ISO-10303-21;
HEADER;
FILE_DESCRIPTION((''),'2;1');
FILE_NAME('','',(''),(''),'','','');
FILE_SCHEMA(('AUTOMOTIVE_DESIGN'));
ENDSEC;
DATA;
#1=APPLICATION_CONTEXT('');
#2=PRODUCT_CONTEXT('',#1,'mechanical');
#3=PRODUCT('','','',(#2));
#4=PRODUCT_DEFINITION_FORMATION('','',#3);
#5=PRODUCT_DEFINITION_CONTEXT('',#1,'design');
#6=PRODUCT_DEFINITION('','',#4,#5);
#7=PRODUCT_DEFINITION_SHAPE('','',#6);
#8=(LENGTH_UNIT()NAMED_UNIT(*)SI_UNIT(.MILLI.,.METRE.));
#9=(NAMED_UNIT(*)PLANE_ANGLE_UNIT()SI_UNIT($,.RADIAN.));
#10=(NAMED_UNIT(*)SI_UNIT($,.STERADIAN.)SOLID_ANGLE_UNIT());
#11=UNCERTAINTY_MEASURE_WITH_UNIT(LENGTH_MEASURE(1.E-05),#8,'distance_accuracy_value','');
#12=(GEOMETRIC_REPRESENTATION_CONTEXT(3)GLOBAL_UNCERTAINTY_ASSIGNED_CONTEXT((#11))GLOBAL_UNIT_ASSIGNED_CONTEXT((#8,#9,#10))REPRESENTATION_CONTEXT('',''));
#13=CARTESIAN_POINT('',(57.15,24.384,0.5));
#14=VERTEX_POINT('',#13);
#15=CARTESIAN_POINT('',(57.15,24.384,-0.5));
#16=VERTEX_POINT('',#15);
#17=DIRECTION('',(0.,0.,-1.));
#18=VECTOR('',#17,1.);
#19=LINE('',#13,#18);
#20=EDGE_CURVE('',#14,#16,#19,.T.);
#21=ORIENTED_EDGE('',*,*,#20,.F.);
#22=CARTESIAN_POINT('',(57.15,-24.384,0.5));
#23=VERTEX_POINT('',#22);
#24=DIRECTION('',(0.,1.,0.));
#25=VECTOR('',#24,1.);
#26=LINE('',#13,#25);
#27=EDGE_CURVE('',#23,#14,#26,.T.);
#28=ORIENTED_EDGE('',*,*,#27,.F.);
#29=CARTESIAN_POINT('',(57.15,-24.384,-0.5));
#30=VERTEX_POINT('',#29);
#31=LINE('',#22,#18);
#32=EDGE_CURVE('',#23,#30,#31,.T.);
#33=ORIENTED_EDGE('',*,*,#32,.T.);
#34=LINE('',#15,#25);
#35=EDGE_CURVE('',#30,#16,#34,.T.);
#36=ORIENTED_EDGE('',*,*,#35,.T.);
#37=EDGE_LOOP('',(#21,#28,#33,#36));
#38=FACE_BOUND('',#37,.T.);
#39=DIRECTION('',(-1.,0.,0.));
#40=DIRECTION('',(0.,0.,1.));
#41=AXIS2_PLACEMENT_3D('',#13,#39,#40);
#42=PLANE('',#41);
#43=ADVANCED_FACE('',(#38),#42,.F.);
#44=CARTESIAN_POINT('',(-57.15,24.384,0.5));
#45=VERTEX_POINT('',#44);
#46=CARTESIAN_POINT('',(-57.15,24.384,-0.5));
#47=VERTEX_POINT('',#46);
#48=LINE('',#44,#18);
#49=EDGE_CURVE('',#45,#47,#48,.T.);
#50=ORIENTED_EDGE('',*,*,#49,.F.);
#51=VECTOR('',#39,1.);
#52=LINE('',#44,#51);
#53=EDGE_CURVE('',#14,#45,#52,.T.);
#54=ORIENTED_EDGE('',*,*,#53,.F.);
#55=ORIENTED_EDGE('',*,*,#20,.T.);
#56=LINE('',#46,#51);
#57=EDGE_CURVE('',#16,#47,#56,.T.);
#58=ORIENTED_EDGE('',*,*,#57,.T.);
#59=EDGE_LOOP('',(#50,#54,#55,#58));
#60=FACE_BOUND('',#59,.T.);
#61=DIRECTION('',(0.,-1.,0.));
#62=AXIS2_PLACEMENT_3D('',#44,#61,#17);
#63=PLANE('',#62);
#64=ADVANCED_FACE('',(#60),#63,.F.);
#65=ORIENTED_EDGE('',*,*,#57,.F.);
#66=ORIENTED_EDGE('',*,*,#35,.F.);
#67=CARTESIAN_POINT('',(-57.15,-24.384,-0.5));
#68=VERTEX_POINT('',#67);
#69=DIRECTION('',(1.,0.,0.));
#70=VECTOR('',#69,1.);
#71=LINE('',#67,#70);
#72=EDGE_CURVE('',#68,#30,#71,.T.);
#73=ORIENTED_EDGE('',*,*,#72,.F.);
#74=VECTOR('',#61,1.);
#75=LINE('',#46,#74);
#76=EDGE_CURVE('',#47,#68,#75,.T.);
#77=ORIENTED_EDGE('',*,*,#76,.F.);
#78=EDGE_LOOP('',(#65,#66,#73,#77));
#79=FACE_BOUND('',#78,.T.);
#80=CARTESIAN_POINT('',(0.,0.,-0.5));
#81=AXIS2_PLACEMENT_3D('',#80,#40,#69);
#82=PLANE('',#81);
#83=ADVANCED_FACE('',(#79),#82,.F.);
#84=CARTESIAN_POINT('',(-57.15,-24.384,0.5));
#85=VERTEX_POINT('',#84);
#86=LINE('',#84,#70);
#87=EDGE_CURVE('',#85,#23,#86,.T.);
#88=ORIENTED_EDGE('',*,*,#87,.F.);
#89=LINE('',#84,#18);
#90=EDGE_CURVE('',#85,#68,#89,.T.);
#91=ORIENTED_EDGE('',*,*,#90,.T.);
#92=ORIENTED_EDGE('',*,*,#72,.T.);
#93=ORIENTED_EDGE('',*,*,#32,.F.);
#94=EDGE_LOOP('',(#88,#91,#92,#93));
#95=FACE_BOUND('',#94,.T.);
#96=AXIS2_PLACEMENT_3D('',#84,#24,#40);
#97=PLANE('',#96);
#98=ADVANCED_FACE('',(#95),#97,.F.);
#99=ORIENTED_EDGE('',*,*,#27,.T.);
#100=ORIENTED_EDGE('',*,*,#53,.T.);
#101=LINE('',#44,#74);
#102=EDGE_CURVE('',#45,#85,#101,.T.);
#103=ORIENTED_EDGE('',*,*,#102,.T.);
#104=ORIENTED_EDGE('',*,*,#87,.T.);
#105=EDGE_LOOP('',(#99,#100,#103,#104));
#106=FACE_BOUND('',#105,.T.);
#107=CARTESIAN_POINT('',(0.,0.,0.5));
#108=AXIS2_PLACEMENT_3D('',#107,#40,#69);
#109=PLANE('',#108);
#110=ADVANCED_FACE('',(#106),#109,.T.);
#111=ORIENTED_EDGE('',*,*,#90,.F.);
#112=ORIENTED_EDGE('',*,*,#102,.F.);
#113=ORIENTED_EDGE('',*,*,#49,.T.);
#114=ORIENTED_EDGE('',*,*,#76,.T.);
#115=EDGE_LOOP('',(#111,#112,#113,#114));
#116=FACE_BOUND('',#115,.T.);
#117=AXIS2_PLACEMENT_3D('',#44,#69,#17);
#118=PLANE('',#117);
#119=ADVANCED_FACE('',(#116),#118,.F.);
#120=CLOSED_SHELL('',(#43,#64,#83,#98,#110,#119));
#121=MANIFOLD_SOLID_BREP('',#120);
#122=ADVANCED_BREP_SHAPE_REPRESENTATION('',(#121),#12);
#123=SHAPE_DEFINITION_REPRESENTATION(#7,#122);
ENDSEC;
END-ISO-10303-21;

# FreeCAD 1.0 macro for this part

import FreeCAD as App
import Part
import Sketcher
Q = App.Units.Quantity

doc = App.newDocument("Part")
params = doc.addObject("Spreadsheet::Sheet", "Params")
for row, (alias, value) in enumerate([
    ("sketch1_width", "4.5 in"),
    ("sketch1_height", "1.92 in"),
    ("pad1_length", "1 mm"),
], start=1):
    params.set(f"A{row}", alias)
    params.set(f"B{row}", "=" + value)
    params.setAlias(f"B{row}", alias)

body = doc.addObject("PartDesign::Body", "Body")

# Sketch on XY plane
sketch1 = body.newObject("Sketcher::SketchObject", "Sketch")
sketch1.AttachmentSupport = (doc.getObject("XY_Plane"), [""])
sketch1.MapMode = "FlatFace"
sketch1.addGeometry([
    Part.LineSegment(App.Vector(-57, 24, 0), App.Vector(-57, -24, 0)),
    Part.LineSegment(App.Vector(-57, -24, 0), App.Vector(57, -24, 0)),
    Part.LineSegment(App.Vector(57, -24, 0), App.Vector(57, 24, 0)),
    Part.LineSegment(App.Vector(57, 24, 0), App.Vector(-57, 24, 0)),
], False)
sketch1.addConstraint([
    Sketcher.Constraint("Coincident", 0, 2, 1, 1),
    Sketcher.Constraint("Coincident", 1, 2, 2, 1),
    Sketcher.Constraint("Coincident", 2, 2, 3, 1),
    Sketcher.Constraint("Coincident", 3, 2, 0, 1),
    Sketcher.Constraint("Vertical", 0),
    Sketcher.Constraint("Horizontal", 1),
    Sketcher.Constraint("Vertical", 2),
    Sketcher.Constraint("Horizontal", 3),
    Sketcher.Constraint("Symmetric", 0, 2, 2, 2, -1, 1),
    Sketcher.Constraint("DistanceX", 1, 1, 1, 2, Q("4.5 in")),
    Sketcher.Constraint("DistanceY", 0, 2, 0, 1, Q("1.92 in")),
])
sketch1.setExpression("Constraints[9]", "Params.sketch1_width")
sketch1.setExpression("Constraints[10]", "Params.sketch1_height")
pad1 = body.newObject("PartDesign::Pad", "Pad")
pad1.Profile = sketch1
pad1.setExpression("Length", "Params.pad1_length")
pad1.Midplane = True

doc.recompute()
